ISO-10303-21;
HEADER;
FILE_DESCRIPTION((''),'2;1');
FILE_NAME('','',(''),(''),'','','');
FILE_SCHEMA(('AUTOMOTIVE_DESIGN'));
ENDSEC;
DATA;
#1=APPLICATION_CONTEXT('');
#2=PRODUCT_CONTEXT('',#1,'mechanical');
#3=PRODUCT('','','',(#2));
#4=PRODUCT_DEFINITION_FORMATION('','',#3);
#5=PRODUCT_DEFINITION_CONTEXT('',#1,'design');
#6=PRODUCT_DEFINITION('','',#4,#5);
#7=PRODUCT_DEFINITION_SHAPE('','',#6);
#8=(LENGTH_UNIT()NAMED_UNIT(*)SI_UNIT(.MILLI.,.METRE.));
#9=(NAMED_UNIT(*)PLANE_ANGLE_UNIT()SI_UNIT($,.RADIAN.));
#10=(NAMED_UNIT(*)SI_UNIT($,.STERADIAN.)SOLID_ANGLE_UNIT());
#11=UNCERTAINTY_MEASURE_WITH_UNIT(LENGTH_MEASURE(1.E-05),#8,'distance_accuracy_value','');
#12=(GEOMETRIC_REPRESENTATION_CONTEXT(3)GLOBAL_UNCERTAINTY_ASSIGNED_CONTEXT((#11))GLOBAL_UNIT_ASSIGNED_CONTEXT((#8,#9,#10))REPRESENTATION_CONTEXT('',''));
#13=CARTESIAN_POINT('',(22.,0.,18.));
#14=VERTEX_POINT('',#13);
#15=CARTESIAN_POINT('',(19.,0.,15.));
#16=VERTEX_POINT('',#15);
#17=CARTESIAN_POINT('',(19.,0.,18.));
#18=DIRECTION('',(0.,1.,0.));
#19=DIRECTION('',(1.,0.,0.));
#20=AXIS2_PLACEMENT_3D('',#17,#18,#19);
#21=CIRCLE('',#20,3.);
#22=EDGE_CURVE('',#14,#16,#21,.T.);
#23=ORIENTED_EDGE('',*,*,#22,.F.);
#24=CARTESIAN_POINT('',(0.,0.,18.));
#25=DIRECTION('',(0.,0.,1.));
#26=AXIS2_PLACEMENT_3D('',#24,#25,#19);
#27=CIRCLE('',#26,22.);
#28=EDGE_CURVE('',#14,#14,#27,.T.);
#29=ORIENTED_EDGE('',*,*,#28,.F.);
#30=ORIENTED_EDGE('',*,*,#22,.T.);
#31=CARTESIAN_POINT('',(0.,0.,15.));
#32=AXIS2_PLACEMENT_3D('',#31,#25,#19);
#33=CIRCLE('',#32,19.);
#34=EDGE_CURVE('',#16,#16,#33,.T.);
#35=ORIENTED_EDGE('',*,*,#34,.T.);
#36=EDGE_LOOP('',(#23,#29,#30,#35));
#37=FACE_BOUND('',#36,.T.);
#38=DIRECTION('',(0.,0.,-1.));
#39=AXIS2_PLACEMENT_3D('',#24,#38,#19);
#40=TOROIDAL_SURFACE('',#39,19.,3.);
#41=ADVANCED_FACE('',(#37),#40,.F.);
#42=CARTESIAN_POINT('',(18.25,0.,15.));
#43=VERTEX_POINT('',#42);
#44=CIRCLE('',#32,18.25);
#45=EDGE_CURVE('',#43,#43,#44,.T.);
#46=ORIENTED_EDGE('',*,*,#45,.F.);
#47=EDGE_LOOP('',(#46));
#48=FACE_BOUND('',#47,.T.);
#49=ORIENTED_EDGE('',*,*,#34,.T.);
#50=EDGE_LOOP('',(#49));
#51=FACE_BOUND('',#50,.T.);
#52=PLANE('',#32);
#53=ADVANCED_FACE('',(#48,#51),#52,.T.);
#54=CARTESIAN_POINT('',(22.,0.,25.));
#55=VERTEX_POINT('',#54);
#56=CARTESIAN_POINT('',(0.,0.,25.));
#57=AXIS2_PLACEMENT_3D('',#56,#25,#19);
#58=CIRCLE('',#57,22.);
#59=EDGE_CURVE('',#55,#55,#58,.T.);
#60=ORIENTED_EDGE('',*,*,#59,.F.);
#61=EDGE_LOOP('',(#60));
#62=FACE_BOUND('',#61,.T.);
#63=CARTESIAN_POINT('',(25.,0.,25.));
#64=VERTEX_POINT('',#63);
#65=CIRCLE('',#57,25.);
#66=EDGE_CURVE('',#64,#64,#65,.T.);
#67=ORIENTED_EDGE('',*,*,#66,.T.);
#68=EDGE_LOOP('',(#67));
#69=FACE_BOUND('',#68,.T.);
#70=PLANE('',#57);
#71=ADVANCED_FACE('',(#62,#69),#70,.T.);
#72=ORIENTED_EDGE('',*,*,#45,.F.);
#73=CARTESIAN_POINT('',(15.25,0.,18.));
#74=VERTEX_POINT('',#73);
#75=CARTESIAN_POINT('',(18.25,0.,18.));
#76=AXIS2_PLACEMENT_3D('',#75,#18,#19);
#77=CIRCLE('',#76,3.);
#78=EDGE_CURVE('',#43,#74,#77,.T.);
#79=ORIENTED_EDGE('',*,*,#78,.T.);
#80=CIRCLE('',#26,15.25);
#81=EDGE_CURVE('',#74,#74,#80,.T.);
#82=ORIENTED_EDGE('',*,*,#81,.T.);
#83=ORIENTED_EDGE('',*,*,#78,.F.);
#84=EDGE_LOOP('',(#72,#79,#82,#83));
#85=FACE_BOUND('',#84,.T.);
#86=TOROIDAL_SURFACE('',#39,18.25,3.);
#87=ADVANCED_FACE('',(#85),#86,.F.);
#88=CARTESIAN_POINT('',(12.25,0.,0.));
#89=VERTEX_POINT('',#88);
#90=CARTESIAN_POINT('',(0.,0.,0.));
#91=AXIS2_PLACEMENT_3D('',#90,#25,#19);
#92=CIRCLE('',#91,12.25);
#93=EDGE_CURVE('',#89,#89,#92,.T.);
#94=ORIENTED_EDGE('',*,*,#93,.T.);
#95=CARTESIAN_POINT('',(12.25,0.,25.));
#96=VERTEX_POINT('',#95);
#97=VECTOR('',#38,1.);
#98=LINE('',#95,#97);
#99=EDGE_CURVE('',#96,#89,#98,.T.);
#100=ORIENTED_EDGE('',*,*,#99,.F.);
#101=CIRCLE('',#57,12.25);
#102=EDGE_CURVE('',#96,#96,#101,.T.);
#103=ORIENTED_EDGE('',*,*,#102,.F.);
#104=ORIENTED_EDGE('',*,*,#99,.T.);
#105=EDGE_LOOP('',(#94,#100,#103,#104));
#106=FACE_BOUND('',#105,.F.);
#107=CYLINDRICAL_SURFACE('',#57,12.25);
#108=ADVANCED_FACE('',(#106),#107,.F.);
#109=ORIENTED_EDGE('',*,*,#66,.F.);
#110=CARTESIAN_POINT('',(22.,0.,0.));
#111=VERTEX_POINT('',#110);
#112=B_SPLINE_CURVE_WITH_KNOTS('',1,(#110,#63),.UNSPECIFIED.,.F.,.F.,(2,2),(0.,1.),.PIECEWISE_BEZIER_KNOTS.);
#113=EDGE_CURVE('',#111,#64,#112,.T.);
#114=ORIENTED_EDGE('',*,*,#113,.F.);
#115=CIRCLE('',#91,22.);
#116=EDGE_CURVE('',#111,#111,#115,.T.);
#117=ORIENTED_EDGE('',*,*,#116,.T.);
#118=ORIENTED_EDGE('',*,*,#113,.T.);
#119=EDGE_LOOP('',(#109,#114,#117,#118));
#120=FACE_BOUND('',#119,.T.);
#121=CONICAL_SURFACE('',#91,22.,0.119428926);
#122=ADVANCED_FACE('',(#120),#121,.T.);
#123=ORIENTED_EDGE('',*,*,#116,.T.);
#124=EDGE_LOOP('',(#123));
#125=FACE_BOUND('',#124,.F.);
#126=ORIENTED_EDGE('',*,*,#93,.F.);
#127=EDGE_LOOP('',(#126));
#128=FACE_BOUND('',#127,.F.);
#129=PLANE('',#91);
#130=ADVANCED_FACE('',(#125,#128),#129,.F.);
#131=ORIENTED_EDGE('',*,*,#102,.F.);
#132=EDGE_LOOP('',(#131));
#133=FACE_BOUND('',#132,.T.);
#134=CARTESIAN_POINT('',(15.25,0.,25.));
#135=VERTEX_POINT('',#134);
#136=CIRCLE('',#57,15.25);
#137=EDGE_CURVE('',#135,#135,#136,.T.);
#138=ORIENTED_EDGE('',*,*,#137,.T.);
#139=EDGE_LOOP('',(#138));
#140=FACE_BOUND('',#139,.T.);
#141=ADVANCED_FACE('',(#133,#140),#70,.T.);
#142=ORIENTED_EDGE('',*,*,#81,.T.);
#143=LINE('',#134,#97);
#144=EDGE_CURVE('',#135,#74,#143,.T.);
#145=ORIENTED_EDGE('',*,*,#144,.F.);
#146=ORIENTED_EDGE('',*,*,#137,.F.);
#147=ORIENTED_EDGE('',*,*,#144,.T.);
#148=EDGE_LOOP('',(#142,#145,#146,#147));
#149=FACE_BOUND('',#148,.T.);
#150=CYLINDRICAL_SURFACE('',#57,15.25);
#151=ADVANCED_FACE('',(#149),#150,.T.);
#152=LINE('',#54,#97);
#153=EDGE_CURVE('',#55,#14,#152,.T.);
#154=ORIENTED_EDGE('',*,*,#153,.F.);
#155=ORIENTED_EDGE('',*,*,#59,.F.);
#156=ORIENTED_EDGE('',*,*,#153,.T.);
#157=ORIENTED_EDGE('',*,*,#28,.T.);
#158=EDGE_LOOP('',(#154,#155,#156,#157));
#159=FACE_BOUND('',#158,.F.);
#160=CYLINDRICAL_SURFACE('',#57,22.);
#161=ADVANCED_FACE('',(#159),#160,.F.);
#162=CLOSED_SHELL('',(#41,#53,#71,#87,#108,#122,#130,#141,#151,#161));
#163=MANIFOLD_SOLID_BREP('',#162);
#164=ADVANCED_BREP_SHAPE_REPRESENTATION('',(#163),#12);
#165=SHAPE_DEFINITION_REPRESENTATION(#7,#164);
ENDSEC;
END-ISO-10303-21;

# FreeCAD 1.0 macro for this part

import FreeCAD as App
import Part
import Sketcher
from FreeCAD import Vector


def edges_at(feature, points):
    """Names of the edges that pass closest to the given points."""
    edges = feature.Shape.Edges
    near = lambda p: min(range(len(edges)), key=lambda i: edges[i].distToShape(Part.Vertex(*p))[0])
    return sorted({f"Edge{near(p) + 1}" for p in points})

doc = App.newDocument("Part")
body = doc.addObject("PartDesign::Body", "Body")

# Sketch on XY plane
sketch1 = body.newObject("Sketcher::SketchObject", "Sketch")
sketch1.AttachmentSupport = (doc.getObject("XY_Plane"), [""])
sketch1.MapMode = "FlatFace"
sketch1.addGeometry(Part.Circle(Vector(0, 0, 0), Vector(0, 0, 1), 22), False)
sketch1.addConstraint(Sketcher.Constraint("Coincident", 0, 3, -1, 1))
sketch1.addConstraint(Sketcher.Constraint("Diameter", 0, 44.0))

# Sketch on XY plane
sketch2 = body.newObject("Sketcher::SketchObject", "Sketch001")
sketch2.AttachmentSupport = (doc.getObject("XY_Plane"), [""])
sketch2.MapMode = "FlatFace"
sketch2.AttachmentOffset = App.Placement(Vector(0, 0, 25), App.Rotation())
sketch2.addGeometry(Part.Circle(Vector(0, 0, 0), Vector(0, 0, 1), 25), False)
sketch2.addConstraint(Sketcher.Constraint("Coincident", 0, 3, -1, 1))
sketch2.addConstraint(Sketcher.Constraint("Diameter", 0, 50.0))

additiveloft = body.newObject("PartDesign::AdditiveLoft", "AdditiveLoft")
additiveloft.Profile = sketch1
additiveloft.Sections = [sketch2]

# Sketch on XY plane
sketch3 = body.newObject("Sketcher::SketchObject", "Sketch002")
sketch3.AttachmentSupport = (doc.getObject("XY_Plane"), [""])
sketch3.MapMode = "FlatFace"
sketch3.AttachmentOffset = App.Placement(Vector(0, 0, 25), App.Rotation())
sketch3.addGeometry(Part.Circle(Vector(0, 0, 0), Vector(0, 0, 1), 12.25), False)
sketch3.addConstraint(Sketcher.Constraint("Coincident", 0, 3, -1, 1))
sketch3.addConstraint(Sketcher.Constraint("Diameter", 0, 24.5))
pocket1 = body.newObject("PartDesign::Pocket", "Pocket")
pocket1.Profile = sketch3
pocket1.Type = "ThroughAll"

# Sketch on XY plane
sketch4 = body.newObject("Sketcher::SketchObject", "Sketch003")
sketch4.AttachmentSupport = (doc.getObject("XY_Plane"), [""])
sketch4.MapMode = "FlatFace"
sketch4.AttachmentOffset = App.Placement(Vector(0, 0, 25), App.Rotation())
sketch4.addGeometry(Part.Circle(Vector(0, 0, 0), Vector(0, 0, 1), 22), False)
sketch4.addGeometry(Part.Circle(Vector(0, 0, 0), Vector(0, 0, 1), 15.25), False)
sketch4.addConstraint(Sketcher.Constraint("Coincident", 0, 3, -1, 1))
sketch4.addConstraint(Sketcher.Constraint("Coincident", 1, 3, -1, 1))
sketch4.addConstraint(Sketcher.Constraint("Diameter", 0, 44.0))
sketch4.addConstraint(Sketcher.Constraint("Diameter", 1, 30.5))
pocket2 = body.newObject("PartDesign::Pocket", "Pocket001")
pocket2.Profile = sketch4
pocket2.Length = 10
doc.recompute()

fillet = body.newObject("PartDesign::Fillet", "Fillet")
fillet.Base = (pocket2, edges_at(pocket2, [(-22, 0, 15), (-15.25, 0, 15)]))
fillet.Radius = 3

doc.recompute()
